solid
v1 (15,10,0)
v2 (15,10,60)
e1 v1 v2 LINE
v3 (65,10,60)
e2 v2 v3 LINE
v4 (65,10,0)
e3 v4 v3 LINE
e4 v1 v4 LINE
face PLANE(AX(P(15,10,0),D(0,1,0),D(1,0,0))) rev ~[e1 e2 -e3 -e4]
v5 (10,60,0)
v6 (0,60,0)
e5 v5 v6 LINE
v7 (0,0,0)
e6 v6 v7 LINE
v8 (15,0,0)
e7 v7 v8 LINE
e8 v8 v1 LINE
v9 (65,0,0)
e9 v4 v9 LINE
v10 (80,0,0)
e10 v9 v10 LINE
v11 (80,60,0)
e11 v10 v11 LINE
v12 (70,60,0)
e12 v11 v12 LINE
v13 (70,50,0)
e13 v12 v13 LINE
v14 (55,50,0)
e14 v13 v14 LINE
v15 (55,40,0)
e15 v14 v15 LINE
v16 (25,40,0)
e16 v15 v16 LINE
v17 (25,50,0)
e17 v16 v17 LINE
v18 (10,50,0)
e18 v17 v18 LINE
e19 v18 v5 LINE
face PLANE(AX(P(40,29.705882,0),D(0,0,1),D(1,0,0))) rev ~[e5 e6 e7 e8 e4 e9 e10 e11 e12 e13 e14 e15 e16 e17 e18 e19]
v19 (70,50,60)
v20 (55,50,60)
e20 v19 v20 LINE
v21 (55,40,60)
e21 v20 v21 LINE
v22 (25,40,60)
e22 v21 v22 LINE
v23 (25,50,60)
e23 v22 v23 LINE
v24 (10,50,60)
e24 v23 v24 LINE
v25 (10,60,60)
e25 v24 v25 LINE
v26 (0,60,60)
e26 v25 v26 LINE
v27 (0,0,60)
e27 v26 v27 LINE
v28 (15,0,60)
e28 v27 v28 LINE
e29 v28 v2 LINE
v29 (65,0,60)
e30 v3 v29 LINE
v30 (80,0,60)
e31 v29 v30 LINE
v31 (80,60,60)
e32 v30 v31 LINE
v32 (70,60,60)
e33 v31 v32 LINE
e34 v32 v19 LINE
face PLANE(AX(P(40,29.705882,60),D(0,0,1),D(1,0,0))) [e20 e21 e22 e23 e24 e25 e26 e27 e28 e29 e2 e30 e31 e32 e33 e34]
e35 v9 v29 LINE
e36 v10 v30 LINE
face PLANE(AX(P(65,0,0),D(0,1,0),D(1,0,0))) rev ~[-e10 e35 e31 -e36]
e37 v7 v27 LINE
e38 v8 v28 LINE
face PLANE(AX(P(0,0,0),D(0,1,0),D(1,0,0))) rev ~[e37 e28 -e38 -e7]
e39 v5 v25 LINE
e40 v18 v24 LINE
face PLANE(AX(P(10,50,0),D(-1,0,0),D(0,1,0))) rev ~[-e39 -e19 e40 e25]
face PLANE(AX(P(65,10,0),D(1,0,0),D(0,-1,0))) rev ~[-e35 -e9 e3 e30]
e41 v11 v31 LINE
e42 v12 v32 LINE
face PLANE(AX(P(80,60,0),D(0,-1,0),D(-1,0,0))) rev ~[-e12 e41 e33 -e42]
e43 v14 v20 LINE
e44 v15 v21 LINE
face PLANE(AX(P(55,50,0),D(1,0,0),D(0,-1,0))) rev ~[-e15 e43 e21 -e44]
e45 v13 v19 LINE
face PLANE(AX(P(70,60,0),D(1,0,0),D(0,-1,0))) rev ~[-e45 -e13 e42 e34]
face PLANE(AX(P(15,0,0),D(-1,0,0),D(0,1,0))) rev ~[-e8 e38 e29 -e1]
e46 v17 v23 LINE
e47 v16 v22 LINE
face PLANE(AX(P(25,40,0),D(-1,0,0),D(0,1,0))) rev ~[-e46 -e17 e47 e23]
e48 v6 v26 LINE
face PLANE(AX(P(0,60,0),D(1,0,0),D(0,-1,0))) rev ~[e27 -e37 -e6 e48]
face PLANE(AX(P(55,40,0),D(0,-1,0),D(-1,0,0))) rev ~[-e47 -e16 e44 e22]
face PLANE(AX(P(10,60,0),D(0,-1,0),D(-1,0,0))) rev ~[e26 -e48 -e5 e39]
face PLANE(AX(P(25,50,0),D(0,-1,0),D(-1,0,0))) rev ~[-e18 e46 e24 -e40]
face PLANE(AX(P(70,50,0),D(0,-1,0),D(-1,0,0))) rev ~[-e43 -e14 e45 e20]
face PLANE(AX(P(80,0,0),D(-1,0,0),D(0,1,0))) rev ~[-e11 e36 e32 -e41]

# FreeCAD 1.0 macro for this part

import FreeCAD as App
import Part
import Sketcher
from FreeCAD import Vector
Q = App.Units.Quantity


def add_polygon(sketch, points):
    """Adds a closed chain of lines whose ends are joined by coincident constraints."""
    first, n = sketch.GeometryCount, len(points)
    for a, b in zip(points, points[1:] + points[:1]):
        sketch.addGeometry(Part.LineSegment(App.Vector(*a, 0), App.Vector(*b, 0)), False)
    for i in range(n):
        sketch.addConstraint(Sketcher.Constraint("Coincident", first + i, 2, first + (i + 1) % n, 1))

doc = App.newDocument("Part")
body = doc.addObject("PartDesign::Body", "Body")

# Sketch on XY plane
sketch1 = body.newObject("Sketcher::SketchObject", "Sketch")
sketch1.AttachmentSupport = (doc.getObject("XY_Plane"), [""])
sketch1.MapMode = "FlatFace"
add_polygon(sketch1, [(0, 60), (0, 0), (15, 0), (15, 10), (65, 10), (65, 0), (80, 0), (80, 60), (70, 60), (70, 50), (55, 50), (55, 40), (25, 40), (25, 50), (10, 50), (10, 60)])  # lines 0-15
sketch1.addConstraint([
    Sketcher.Constraint("Vertical", 0),
    Sketcher.Constraint("Horizontal", 1),
    Sketcher.Constraint("Vertical", 2),
    Sketcher.Constraint("Horizontal", 3),
    Sketcher.Constraint("Vertical", 4),
    Sketcher.Constraint("Horizontal", 5),
    Sketcher.Constraint("Vertical", 6),
    Sketcher.Constraint("Horizontal", 7),
    Sketcher.Constraint("Vertical", 8),
    Sketcher.Constraint("Horizontal", 9),
    Sketcher.Constraint("Vertical", 10),
    Sketcher.Constraint("Horizontal", 11),
    Sketcher.Constraint("Vertical", 12),
    Sketcher.Constraint("Horizontal", 13),
    Sketcher.Constraint("Vertical", 14),
    Sketcher.Constraint("Horizontal", 15),
    Sketcher.Constraint("Coincident", 0, 2, -1, 1),
    Sketcher.Constraint("PointOnObject", 4, 2, -1),
    Sketcher.Constraint("Horizontal", 9, 2, 12, 2),
    Sketcher.Constraint("Horizontal", 7, 2, 14, 2),
    Sketcher.Constraint("Equal", 1, 5),
    Sketcher.Constraint("Equal", 5, 9),
    Sketcher.Constraint("Equal", 9, 13),
    Sketcher.Constraint("Equal", 7, 15),
    Sketcher.Constraint("Equal", 15, 2),
    Sketcher.Constraint("Equal", 4, 8),
    Sketcher.Constraint("Equal", 8, 10),
    Sketcher.Constraint("DistanceX", 1, 1, 1, 2, Q("15 mm")),
    Sketcher.Constraint("DistanceX", 3, 1, 3, 2, Q("50 mm")),
    Sketcher.Constraint("DistanceX", 7, 2, 7, 1, Q("10 mm")),
    Sketcher.Constraint("DistanceY", 0, 2, 0, 1, Q("60 mm")),
])
pad1 = body.newObject("PartDesign::Pad", "Pad")
pad1.Profile = sketch1
pad1.Length = 60

doc.recompute()
